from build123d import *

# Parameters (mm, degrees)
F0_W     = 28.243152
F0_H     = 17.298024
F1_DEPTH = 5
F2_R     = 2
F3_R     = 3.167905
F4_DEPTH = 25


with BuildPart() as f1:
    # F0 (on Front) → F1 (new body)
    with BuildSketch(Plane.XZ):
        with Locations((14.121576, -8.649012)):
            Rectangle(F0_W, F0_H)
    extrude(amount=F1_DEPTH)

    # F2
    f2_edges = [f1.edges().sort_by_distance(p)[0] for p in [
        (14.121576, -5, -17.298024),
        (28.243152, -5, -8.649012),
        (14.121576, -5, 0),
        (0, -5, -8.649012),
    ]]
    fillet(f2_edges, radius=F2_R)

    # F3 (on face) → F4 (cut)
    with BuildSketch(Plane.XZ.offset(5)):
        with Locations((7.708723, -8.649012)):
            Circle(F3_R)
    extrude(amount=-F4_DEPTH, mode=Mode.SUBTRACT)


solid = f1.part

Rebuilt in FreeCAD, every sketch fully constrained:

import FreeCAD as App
import Part
import Sketcher


def edges_at(feature, points):
    """Names of the edges that pass closest to the given points."""
    edges = feature.Shape.Edges
    near = lambda p: min(range(len(edges)), key=lambda i: edges[i].distToShape(Part.Vertex(*p))[0])
    return sorted({f"Edge{near(p) + 1}" for p in points})


def add_polygon(sketch, points):
    """Adds a closed chain of lines whose ends are joined by coincident constraints."""
    first, n = sketch.GeometryCount, len(points)
    for a, b in zip(points, points[1:] + points[:1]):
        sketch.addGeometry(Part.LineSegment(App.Vector(*a, 0), App.Vector(*b, 0)), False)
    for i in range(n):
        sketch.addConstraint(Sketcher.Constraint("Coincident", first + i, 2, first + (i + 1) % n, 1))

doc = App.newDocument("Part")
params = doc.addObject("Spreadsheet::Sheet", "Params")
for row, (alias, value) in enumerate([
    ("pad1_length", "5 mm"),
    ("fillet_radius", "2 mm"),
    ("pocket1_length", "25 mm"),
], start=1):
    params.set(f"A{row}", alias)
    params.set(f"B{row}", "=" + value)
    params.setAlias(f"B{row}", alias)

body = doc.addObject("PartDesign::Body", "Body")

# Sketch on XZ plane
sketch1 = body.newObject("Sketcher::SketchObject", "Sketch")
sketch1.AttachmentSupport = (doc.getObject("XZ_Plane"), [""])
sketch1.MapMode = "FlatFace"
add_polygon(sketch1, [(0, 0), (0, -17), (28, -17), (28, 0)])  # lines 0-3
sketch1.addConstraint([
    Sketcher.Constraint("Vertical", 0),
    Sketcher.Constraint("Horizontal", 1),
    Sketcher.Constraint("Vertical", 2),
    Sketcher.Constraint("Horizontal", 3),
    Sketcher.Constraint("Coincident", 3, 2, -1, 1),
    Sketcher.Constraint("DistanceX", 1, 1, 1, 2, 28.243152),
    Sketcher.Constraint("DistanceY", 0, 2, 0, 1, 17.298024),
])
pad1 = body.newObject("PartDesign::Pad", "Pad")
pad1.Profile = sketch1
pad1.setExpression("Length", "Params.pad1_length")
doc.recompute()

fillet = body.newObject("PartDesign::Fillet", "Fillet")
fillet.Base = (pad1, edges_at(pad1, [
    (14.122, -5, -17.298),
    (28.243, -5, -8.649),
    (14.122, -5, 0),
    (0, -5, -8.649),
]))
fillet.setExpression("Radius", "Params.fillet_radius")

# Sketch on XZ plane
sketch2 = body.newObject("Sketcher::SketchObject", "Sketch001")
sketch2.AttachmentSupport = (doc.getObject("XZ_Plane"), [""])
sketch2.MapMode = "FlatFace"
sketch2.AttachmentOffset = App.Placement(App.Vector(0, 0, 5), App.Rotation())
sketch2.addGeometry(Part.Circle(App.Vector(7.7, -8.6, 0), App.Vector(0, 0, 1), 3.2), False)
sketch2.addConstraint([
    Sketcher.Constraint("Diameter", 0, 6.33581),
    Sketcher.Constraint("DistanceX", -1, 1, 0, 3, 7.708723),
    Sketcher.Constraint("DistanceY", 0, 3, -1, 1, 8.649012),
])
pocket1 = body.newObject("PartDesign::Pocket", "Pocket")
pocket1.Profile = sketch2
pocket1.setExpression("Length", "Params.pocket1_length")

doc.recompute()
